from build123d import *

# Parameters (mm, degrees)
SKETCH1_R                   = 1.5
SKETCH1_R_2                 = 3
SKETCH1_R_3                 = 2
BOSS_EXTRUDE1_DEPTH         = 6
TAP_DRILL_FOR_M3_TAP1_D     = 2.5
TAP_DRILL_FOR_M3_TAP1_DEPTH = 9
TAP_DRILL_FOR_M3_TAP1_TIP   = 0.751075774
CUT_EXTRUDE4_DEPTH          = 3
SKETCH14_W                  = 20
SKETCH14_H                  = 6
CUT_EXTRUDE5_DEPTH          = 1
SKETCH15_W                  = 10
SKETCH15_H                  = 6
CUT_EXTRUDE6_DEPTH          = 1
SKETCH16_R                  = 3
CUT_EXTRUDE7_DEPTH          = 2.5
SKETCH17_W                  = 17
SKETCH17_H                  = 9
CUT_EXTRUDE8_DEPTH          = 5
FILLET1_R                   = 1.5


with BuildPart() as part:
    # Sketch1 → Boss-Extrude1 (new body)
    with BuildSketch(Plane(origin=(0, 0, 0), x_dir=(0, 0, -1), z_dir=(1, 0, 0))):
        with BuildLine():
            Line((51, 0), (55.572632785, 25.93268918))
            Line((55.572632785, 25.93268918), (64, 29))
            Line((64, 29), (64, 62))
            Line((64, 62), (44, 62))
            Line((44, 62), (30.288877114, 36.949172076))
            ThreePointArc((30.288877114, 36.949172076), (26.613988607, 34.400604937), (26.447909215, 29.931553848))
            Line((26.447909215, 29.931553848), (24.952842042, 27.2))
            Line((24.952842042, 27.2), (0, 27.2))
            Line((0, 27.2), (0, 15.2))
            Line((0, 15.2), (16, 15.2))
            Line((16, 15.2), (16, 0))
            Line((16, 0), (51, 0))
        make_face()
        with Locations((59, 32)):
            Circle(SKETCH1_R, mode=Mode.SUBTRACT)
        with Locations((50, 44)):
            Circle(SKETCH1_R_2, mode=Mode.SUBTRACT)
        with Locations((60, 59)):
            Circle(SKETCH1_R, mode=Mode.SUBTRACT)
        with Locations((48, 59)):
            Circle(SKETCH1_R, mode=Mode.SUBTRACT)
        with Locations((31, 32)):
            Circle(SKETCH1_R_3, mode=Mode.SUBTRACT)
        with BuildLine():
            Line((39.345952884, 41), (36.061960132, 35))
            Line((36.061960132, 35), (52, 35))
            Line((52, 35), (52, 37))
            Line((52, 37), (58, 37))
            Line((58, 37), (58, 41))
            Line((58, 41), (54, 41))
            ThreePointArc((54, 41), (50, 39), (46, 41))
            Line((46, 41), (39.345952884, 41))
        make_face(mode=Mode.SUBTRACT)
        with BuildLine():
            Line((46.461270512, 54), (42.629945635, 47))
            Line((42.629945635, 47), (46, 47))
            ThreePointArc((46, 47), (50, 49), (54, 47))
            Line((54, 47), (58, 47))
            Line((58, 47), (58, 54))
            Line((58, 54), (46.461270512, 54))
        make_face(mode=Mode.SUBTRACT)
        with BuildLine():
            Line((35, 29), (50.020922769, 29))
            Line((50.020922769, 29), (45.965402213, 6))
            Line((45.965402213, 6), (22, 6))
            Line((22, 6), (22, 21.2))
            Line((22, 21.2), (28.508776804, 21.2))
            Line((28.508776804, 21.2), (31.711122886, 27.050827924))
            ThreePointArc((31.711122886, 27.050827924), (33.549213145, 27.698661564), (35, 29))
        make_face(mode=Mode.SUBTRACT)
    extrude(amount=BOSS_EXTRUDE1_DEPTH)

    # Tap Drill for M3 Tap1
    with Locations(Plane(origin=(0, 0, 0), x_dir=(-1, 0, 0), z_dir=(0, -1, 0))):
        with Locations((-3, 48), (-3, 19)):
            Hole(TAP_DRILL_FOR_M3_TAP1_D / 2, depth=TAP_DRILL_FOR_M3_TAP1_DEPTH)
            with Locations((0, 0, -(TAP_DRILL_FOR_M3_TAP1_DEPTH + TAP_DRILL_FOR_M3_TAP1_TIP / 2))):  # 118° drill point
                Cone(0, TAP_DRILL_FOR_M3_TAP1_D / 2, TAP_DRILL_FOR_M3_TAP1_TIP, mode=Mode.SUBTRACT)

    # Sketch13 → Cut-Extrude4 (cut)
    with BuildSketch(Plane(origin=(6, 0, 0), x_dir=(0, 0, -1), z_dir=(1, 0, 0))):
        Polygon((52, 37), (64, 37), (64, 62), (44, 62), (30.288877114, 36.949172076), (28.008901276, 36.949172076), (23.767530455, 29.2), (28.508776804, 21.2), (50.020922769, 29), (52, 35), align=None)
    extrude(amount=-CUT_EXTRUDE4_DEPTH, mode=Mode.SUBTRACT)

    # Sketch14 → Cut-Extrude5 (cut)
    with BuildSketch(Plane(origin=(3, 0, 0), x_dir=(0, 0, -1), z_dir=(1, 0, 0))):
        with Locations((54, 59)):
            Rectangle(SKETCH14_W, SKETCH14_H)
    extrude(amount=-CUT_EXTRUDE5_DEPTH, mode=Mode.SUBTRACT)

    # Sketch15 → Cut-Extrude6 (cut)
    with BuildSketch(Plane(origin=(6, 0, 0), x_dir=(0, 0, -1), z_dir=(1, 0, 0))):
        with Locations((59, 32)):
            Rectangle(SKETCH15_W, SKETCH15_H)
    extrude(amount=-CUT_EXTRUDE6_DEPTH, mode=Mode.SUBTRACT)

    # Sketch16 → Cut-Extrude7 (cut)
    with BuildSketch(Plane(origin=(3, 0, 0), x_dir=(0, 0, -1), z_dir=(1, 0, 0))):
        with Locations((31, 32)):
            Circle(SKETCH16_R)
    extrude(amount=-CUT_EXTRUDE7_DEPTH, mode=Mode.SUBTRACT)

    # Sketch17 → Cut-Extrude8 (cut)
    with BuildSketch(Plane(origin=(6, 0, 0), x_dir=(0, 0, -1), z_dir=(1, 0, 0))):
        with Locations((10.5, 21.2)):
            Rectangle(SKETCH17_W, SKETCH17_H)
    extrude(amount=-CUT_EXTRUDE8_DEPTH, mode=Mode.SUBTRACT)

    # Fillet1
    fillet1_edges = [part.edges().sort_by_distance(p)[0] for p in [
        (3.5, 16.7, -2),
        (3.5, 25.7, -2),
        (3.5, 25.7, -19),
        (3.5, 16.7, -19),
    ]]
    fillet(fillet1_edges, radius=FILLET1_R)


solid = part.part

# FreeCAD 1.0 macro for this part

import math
import FreeCAD as App
import Part
import Sketcher
from FreeCAD import Vector
Q = App.Units.Quantity


def edges_at(feature, points):
    """Names of the edges that pass closest to the given points."""
    edges = feature.Shape.Edges
    near = lambda p: min(range(len(edges)), key=lambda i: edges[i].distToShape(Part.Vertex(*p))[0])
    return sorted({f"Edge{near(p) + 1}" for p in points})


def add_polygon(sketch, points):
    """Adds a closed chain of lines whose ends are joined by coincident constraints."""
    first, n = sketch.GeometryCount, len(points)
    for a, b in zip(points, points[1:] + points[:1]):
        sketch.addGeometry(Part.LineSegment(App.Vector(*a, 0), App.Vector(*b, 0)), False)
    for i in range(n):
        sketch.addConstraint(Sketcher.Constraint("Coincident", first + i, 2, first + (i + 1) % n, 1))

doc = App.newDocument("Part")
params = doc.addObject("Spreadsheet::Sheet", "Params")
for row, (alias, value) in enumerate([
    ("sketch1_diameter", "4 mm"),
    ("sketch1_diameter2", "3 mm"),
    ("sketch1_diameter3", "6 mm"),
    ("sketch1_radius", "5 mm"),
    ("sketch1_width", "33 mm"),
    ("pad1_length", "6 mm"),
    ("sketch2_diameter", "2.5 mm"),
    ("hole_diameter", "2.5 mm"),
    ("hole_depth", "9 mm"),
    ("sketch3_width", "25 mm"),
    ("sketch3_width2", "2 mm"),
    ("sketch3_height", "12 mm"),
    ("sketch3_height2", "20 mm"),
    ("pocket1_length", "3 mm"),
    ("sketch4_width", "6 mm"),
    ("sketch4_height", "20 mm"),
    ("pocket2_length", "1 mm"),
    ("sketch5_width", "6 mm"),
    ("sketch5_height", "10 mm"),
    ("pocket3_length", "1 mm"),
    ("sketch6_diameter", "6 mm"),
    ("pocket4_length", "2.5 mm"),
    ("sketch7_width", "9 mm"),
    ("sketch7_height", "17 mm"),
    ("pocket5_length", "5 mm"),
    ("fillet_radius", "1.5 mm"),
], start=1):
    params.set(f"A{row}", alias)
    params.set(f"B{row}", "=" + value)
    params.setAlias(f"B{row}", alias)

body = doc.addObject("PartDesign::Body", "Body")

sketch1 = body.newObject("Sketcher::SketchObject", "Sketch")
sketch1.AttachmentSupport = (doc.getObject("YZ_Plane"), [""])
sketch1.MapMode = "FlatFace"
sketch1.addGeometry(Part.LineSegment(Vector(0, -51, 0), Vector(25.9, -55.6, 0)), False)
sketch1.addGeometry(Part.LineSegment(Vector(25.9, -55.6, 0), Vector(29, -64, 0)), False)
sketch1.addGeometry(Part.LineSegment(Vector(29, -64, 0), Vector(62, -64, 0)), False)
sketch1.addGeometry(Part.LineSegment(Vector(62, -64, 0), Vector(62, -44, 0)), False)
sketch1.addGeometry(Part.LineSegment(Vector(62, -44, 0), Vector(36.9, -30.3, 0)), False)
sketch1.addGeometry(Part.ArcOfCircle(Part.Circle(Vector(32, -31, 0), Vector(0, 0, 1), 5), math.radians(8), math.radians(114)), False)
sketch1.addGeometry(Part.LineSegment(Vector(29.9, -26.4, 0), Vector(27.2, -25, 0)), False)
sketch1.addGeometry(Part.LineSegment(Vector(27.2, -25, 0), Vector(27.2, 0, 0)), False)
sketch1.addGeometry(Part.LineSegment(Vector(27.2, 0, 0), Vector(15.2, 0, 0)), False)
sketch1.addGeometry(Part.LineSegment(Vector(15.2, 0, 0), Vector(15.2, -16, 0)), False)
sketch1.addGeometry(Part.LineSegment(Vector(15.2, -16, 0), Vector(0, -16, 0)), False)
sketch1.addGeometry(Part.LineSegment(Vector(0, -16, 0), Vector(0, -51, 0)), False)
sketch1.addGeometry(Part.ArcOfCircle(Part.Circle(Vector(32, -31, 0), Vector(0, 0, 1), 5), math.radians(-172), math.radians(-127)), False)
sketch1.addGeometry(Part.LineSegment(Vector(29, -35, 0), Vector(29, -50, 0)), False)
sketch1.addGeometry(Part.LineSegment(Vector(29, -50, 0), Vector(6, -46, 0)), False)
sketch1.addGeometry(Part.LineSegment(Vector(6, -46, 0), Vector(6, -22, 0)), False)
sketch1.addGeometry(Part.LineSegment(Vector(6, -22, 0), Vector(21.2, -22, 0)), False)
sketch1.addGeometry(Part.LineSegment(Vector(21.2, -22, 0), Vector(21.2, -28.5, 0)), False)
sketch1.addGeometry(Part.LineSegment(Vector(21.2, -28.5, 0), Vector(27.1, -31.7, 0)), False)
sketch1.addGeometry(Part.Circle(Vector(32, -31, 0), Vector(0, 0, 1), 2), False)
sketch1.addGeometry(Part.Circle(Vector(32, -59, 0), Vector(0, 0, 1), 1.5), False)
sketch1.addGeometry(Part.LineSegment(Vector(35, -36.1, 0), Vector(41, -39.3, 0)), False)
sketch1.addGeometry(Part.LineSegment(Vector(41, -39.3, 0), Vector(41, -46, 0)), False)
sketch1.addGeometry(Part.ArcOfCircle(Part.Circle(Vector(44, -50, 0), Vector(0, 0, 1), 5), math.radians(127), math.radians(233)), False)
sketch1.addGeometry(Part.LineSegment(Vector(41, -54, 0), Vector(41, -58, 0)), False)
sketch1.addGeometry(Part.LineSegment(Vector(41, -58, 0), Vector(37, -58, 0)), False)
sketch1.addGeometry(Part.LineSegment(Vector(37, -58, 0), Vector(37, -52, 0)), False)
sketch1.addGeometry(Part.LineSegment(Vector(37, -52, 0), Vector(35, -52, 0)), False)
sketch1.addGeometry(Part.LineSegment(Vector(35, -52, 0), Vector(35, -36.1, 0)), False)
sketch1.addGeometry(Part.Circle(Vector(44, -50, 0), Vector(0, 0, 1), 3), False)
sketch1.addGeometry(Part.LineSegment(Vector(47, -42.6, 0), Vector(54, -46.5, 0)), False)
sketch1.addGeometry(Part.LineSegment(Vector(54, -46.5, 0), Vector(54, -58, 0)), False)
sketch1.addGeometry(Part.LineSegment(Vector(54, -58, 0), Vector(47, -58, 0)), False)
sketch1.addGeometry(Part.LineSegment(Vector(47, -58, 0), Vector(47, -54, 0)), False)
sketch1.addGeometry(Part.ArcOfCircle(Part.Circle(Vector(44, -50, 0), Vector(0, 0, 1), 5), math.radians(-53), math.radians(53)), False)
sketch1.addGeometry(Part.LineSegment(Vector(47, -46, 0), Vector(47, -42.6, 0)), False)
sketch1.addGeometry(Part.Circle(Vector(59, -48, 0), Vector(0, 0, 1), 1.5), False)
sketch1.addGeometry(Part.Circle(Vector(59, -60, 0), Vector(0, 0, 1), 1.5), False)
sketch1.addConstraint(Sketcher.Constraint("Coincident", 0, 2, 1, 1))
sketch1.addConstraint(Sketcher.Constraint("Coincident", 1, 2, 2, 1))
sketch1.addConstraint(Sketcher.Constraint("Coincident", 2, 2, 3, 1))
sketch1.addConstraint(Sketcher.Constraint("Coincident", 3, 2, 4, 1))
sketch1.addConstraint(Sketcher.Constraint("Coincident", 4, 2, 5, 1))
sketch1.addConstraint(Sketcher.Constraint("Coincident", 5, 2, 6, 1))
sketch1.addConstraint(Sketcher.Constraint("Coincident", 6, 2, 7, 1))
sketch1.addConstraint(Sketcher.Constraint("Coincident", 7, 2, 8, 1))
sketch1.addConstraint(Sketcher.Constraint("Coincident", 8, 2, 9, 1))
sketch1.addConstraint(Sketcher.Constraint("Coincident", 9, 2, 10, 1))
sketch1.addConstraint(Sketcher.Constraint("Coincident", 10, 2, 11, 1))
sketch1.addConstraint(Sketcher.Constraint("Coincident", 11, 2, 0, 1))
sketch1.addConstraint(Sketcher.Constraint("Coincident", 12, 2, 13, 1))
sketch1.addConstraint(Sketcher.Constraint("Coincident", 13, 2, 14, 1))
sketch1.addConstraint(Sketcher.Constraint("Coincident", 14, 2, 15, 1))
sketch1.addConstraint(Sketcher.Constraint("Coincident", 15, 2, 16, 1))
sketch1.addConstraint(Sketcher.Constraint("Coincident", 16, 2, 17, 1))
sketch1.addConstraint(Sketcher.Constraint("Coincident", 17, 2, 18, 1))
sketch1.addConstraint(Sketcher.Constraint("Coincident", 18, 2, 12, 1))
sketch1.addConstraint(Sketcher.Constraint("Coincident", 21, 2, 22, 1))
sketch1.addConstraint(Sketcher.Constraint("Coincident", 22, 2, 23, 1))
sketch1.addConstraint(Sketcher.Constraint("Coincident", 23, 2, 24, 1))
sketch1.addConstraint(Sketcher.Constraint("Coincident", 24, 2, 25, 1))
sketch1.addConstraint(Sketcher.Constraint("Coincident", 25, 2, 26, 1))
sketch1.addConstraint(Sketcher.Constraint("Coincident", 26, 2, 27, 1))
sketch1.addConstraint(Sketcher.Constraint("Coincident", 27, 2, 28, 1))
sketch1.addConstraint(Sketcher.Constraint("Coincident", 28, 2, 21, 1))
sketch1.addConstraint(Sketcher.Constraint("Coincident", 30, 2, 31, 1))
sketch1.addConstraint(Sketcher.Constraint("Coincident", 31, 2, 32, 1))
sketch1.addConstraint(Sketcher.Constraint("Coincident", 32, 2, 33, 1))
sketch1.addConstraint(Sketcher.Constraint("Coincident", 33, 2, 34, 1))
sketch1.addConstraint(Sketcher.Constraint("Coincident", 34, 2, 35, 1))
sketch1.addConstraint(Sketcher.Constraint("Coincident", 35, 2, 30, 1))
sketch1.addConstraint(Sketcher.Constraint("Horizontal", 2))
sketch1.addConstraint(Sketcher.Constraint("Vertical", 3))
sketch1.addConstraint(Sketcher.Constraint("Vertical", 7))
sketch1.addConstraint(Sketcher.Constraint("Horizontal", 8))
sketch1.addConstraint(Sketcher.Constraint("Vertical", 9))
sketch1.addConstraint(Sketcher.Constraint("Horizontal", 10))
sketch1.addConstraint(Sketcher.Constraint("Vertical", 11))
sketch1.addConstraint(Sketcher.Constraint("Vertical", 13))
sketch1.addConstraint(Sketcher.Constraint("Vertical", 15))
sketch1.addConstraint(Sketcher.Constraint("Horizontal", 16))
sketch1.addConstraint(Sketcher.Constraint("Vertical", 17))
sketch1.addConstraint(Sketcher.Constraint("Vertical", 22))
sketch1.addConstraint(Sketcher.Constraint("Vertical", 24))
sketch1.addConstraint(Sketcher.Constraint("Horizontal", 25))
sketch1.addConstraint(Sketcher.Constraint("Vertical", 26))
sketch1.addConstraint(Sketcher.Constraint("Horizontal", 27))
sketch1.addConstraint(Sketcher.Constraint("Vertical", 28))
sketch1.addConstraint(Sketcher.Constraint("Vertical", 31))
sketch1.addConstraint(Sketcher.Constraint("Horizontal", 32))
sketch1.addConstraint(Sketcher.Constraint("Vertical", 33))
sketch1.addConstraint(Sketcher.Constraint("Vertical", 35))
sketch1.addConstraint(Sketcher.Constraint("Coincident", 12, 3, 5, 3))
sketch1.addConstraint(Sketcher.Constraint("Coincident", 19, 3, 5, 3))
sketch1.addConstraint(Sketcher.Constraint("Coincident", 29, 3, 23, 3))
sketch1.addConstraint(Sketcher.Constraint("Coincident", 34, 3, 23, 3))
sketch1.addConstraint(Sketcher.Constraint("Equal", 5, 12))
sketch1.addConstraint(Sketcher.Constraint("Equal", 12, 23))
sketch1.addConstraint(Sketcher.Constraint("Equal", 23, 34))
sketch1.addConstraint(Sketcher.Constraint("Equal", 20, 36))
sketch1.addConstraint(Sketcher.Constraint("Equal", 36, 37))
sketch1.addConstraint(Sketcher.Constraint("PointOnObject", 7, 2, -1))
sketch1.addConstraint(Sketcher.Constraint("PointOnObject", 10, 2, -2))
sketch1.addConstraint(Sketcher.Constraint("Parallel", 4, 6))
sketch1.addConstraint(Sketcher.Constraint("Parallel", 0, 14))
sketch1.addConstraint(Sketcher.Constraint("Parallel", 6, 18))
sketch1.addConstraint(Sketcher.Constraint("Parallel", 18, 21))
sketch1.addConstraint(Sketcher.Constraint("Parallel", 21, 30))
sketch1.addConstraint(Sketcher.Constraint("Horizontal", 25, 2, 31, 2))
sketch1.addConstraint(Sketcher.Constraint("Horizontal", 23, 2, 33, 2))
sketch1.addConstraint(Sketcher.Constraint("Horizontal", 22, 2, 34, 2))
sketch1.addConstraint(Sketcher.Constraint("Vertical", 19, 3, 20, 3))
sketch1.addConstraint(Sketcher.Constraint("Vertical", 36, 3, 37, 3))
sketch1.addConstraint(Sketcher.Constraint("Vertical", 1, 2, 12, 2))
sketch1.addConstraint(Sketcher.Constraint("Vertical", 22, 2, 23, 2))
sketch1.addConstraint(Sketcher.Constraint("Equal", 10, 16))
sketch1.addConstraint(Sketcher.Constraint("Equal", 25, 24))
sketch1.addConstraint(Sketcher.Constraint("Diameter", 19, Q("4 mm")))
sketch1.addConstraint(Sketcher.Constraint("Diameter", 20, Q("3 mm")))
sketch1.addConstraint(Sketcher.Constraint("Diameter", 29, Q("6 mm")))
sketch1.addConstraint(Sketcher.Constraint("Radius", 5, Q("5 mm")))
sketch1.addConstraint(Sketcher.Constraint("DistanceX", 2, 1, 2, 2, Q("33 mm")))
sketch1.addConstraint(Sketcher.Constraint("DistanceX", 8, 2, 8, 1, Q("12 mm")))
sketch1.addConstraint(Sketcher.Constraint("DistanceX", 25, 2, 25, 1, Q("4 mm")))
sketch1.addConstraint(Sketcher.Constraint("DistanceX", 27, 2, 27, 1, Q("2 mm")))
sketch1.addConstraint(Sketcher.Constraint("DistanceX", 32, 2, 32, 1, Q("7 mm")))
sketch1.addConstraint(Sketcher.Constraint("DistanceY", 3, 1, 3, 2, Q("20 mm")))
sketch1.addConstraint(Sketcher.Constraint("DistanceY", 9, 2, 9, 1, Q("16 mm")))
sketch1.addConstraint(Sketcher.Constraint("DistanceY", 11, 2, 11, 1, Q("35 mm")))
sketch1.addConstraint(Sketcher.Constraint("DistanceY", 26, 1, 26, 2, Q("6 mm")))
sketch1.addConstraint(Sketcher.Constraint("Angle", 0, Q("-10 deg")))
sketch1.addConstraint(Sketcher.Constraint("Angle", 1, Q("-70 deg")))
sketch1.addConstraint(Sketcher.Constraint("DistanceX", 10, 2, 10, 1, Q("15.2 mm")))
sketch1.addConstraint(Sketcher.Constraint("DistanceX", -1, 1, 5, 3, Q("32 mm")))
sketch1.addConstraint(Sketcher.Constraint("DistanceY", 5, 3, -1, 1, Q("31 mm")))
sketch1.addConstraint(Sketcher.Constraint("DistanceY", 20, 3, -1, 1, Q("59 mm")))
sketch1.addConstraint(Sketcher.Constraint("DistanceX", -1, 1, 23, 3, Q("44 mm")))
sketch1.addConstraint(Sketcher.Constraint("DistanceY", 23, 3, -1, 1, Q("50 mm")))
sketch1.addConstraint(Sketcher.Constraint("DistanceX", -1, 1, 36, 3, Q("59 mm")))
sketch1.addConstraint(Sketcher.Constraint("DistanceY", 36, 3, -1, 1, Q("48 mm")))
sketch1.addConstraint(Sketcher.Constraint("DistanceY", 37, 3, -1, 1, Q("60 mm")))
sketch1.addConstraint(Sketcher.Constraint("DistanceX", -1, 1, 1, 2, Q("29 mm")))
sketch1.addConstraint(Sketcher.Constraint("DistanceY", 1, 2, -1, 1, Q("64 mm")))
sketch1.addConstraint(Sketcher.Constraint("DistanceX", -1, 1, 14, 2, Q("6 mm")))
sketch1.addConstraint(Sketcher.Constraint("DistanceY", 15, 2, -1, 1, Q("22 mm")))
sketch1.addConstraint(Sketcher.Constraint("DistanceX", -1, 1, 21, 2, Q("41 mm")))
sketch1.addConstraint(Sketcher.Constraint("DistanceY", 28, 1, 28, 2, Q("15.93804 mm")))
sketch1.addConstraint(Sketcher.Constraint("DistanceY", 31, 2, 31, 1, Q("11.538729 mm")))
sketch1.addConstraint(Sketcher.Constraint("Distance", 4, Q("28.557641 mm")))
sketch1.addConstraint(Sketcher.Constraint("Distance", 6, Q("3.113938 mm")))
sketch1.addConstraint(Sketcher.Constraint("DistanceY", 13, 2, 13, 1, Q("15.020923 mm")))
sketch1.addConstraint(Sketcher.Constraint("DistanceY", 17, 2, 17, 1, Q("6.508777 mm")))
sketch1.setExpression("Constraints[79]", "Params.sketch1_diameter")
sketch1.setExpression("Constraints[80]", "Params.sketch1_diameter2")
sketch1.setExpression("Constraints[81]", "Params.sketch1_diameter3")
sketch1.setExpression("Constraints[82]", "Params.sketch1_radius")
sketch1.setExpression("Constraints[83]", "Params.sketch1_width")
pad1 = body.newObject("PartDesign::Pad", "Pad")
pad1.Profile = sketch1
pad1.setExpression("Length", "Params.pad1_length")

sketch2 = body.newObject("Sketcher::SketchObject", "Sketch001")
sketch2.AttachmentSupport = (doc.getObject("XZ_Plane"), [""])
sketch2.MapMode = "FlatFace"
sketch2.addGeometry(Part.Circle(Vector(3, -48, 0), Vector(0, 0, 1), 1.2), False)
sketch2.addGeometry(Part.Circle(Vector(3, -19, 0), Vector(0, 0, 1), 1.2), False)
sketch2.addConstraint(Sketcher.Constraint("Equal", 0, 1))
sketch2.addConstraint(Sketcher.Constraint("Vertical", 0, 3, 1, 3))
sketch2.addConstraint(Sketcher.Constraint("Diameter", 0, Q("2.5 mm")))
sketch2.addConstraint(Sketcher.Constraint("DistanceX", -1, 1, 0, 3, Q("3 mm")))
sketch2.addConstraint(Sketcher.Constraint("DistanceY", 0, 3, -1, 1, Q("48 mm")))
sketch2.addConstraint(Sketcher.Constraint("DistanceY", 1, 3, -1, 1, Q("19 mm")))
sketch2.setExpression("Constraints[2]", "Params.sketch2_diameter")
doc.recompute()
hole = body.newObject("PartDesign::Hole", "Hole")
hole.Profile = sketch2
hole.ThreadType = "None"
hole.setExpression("Diameter", "Params.hole_diameter")
hole.DepthType = "Dimension"
hole.setExpression("Depth", "Params.hole_depth")
hole.DrillPoint = "Angled"
hole.DrillPointAngle = 118

sketch3 = body.newObject("Sketcher::SketchObject", "Sketch002")
sketch3.AttachmentSupport = (doc.getObject("YZ_Plane"), [""])
sketch3.MapMode = "FlatFace"
sketch3.AttachmentOffset = App.Placement(Vector(0, 0, 6), App.Rotation())
add_polygon(sketch3, [(37, -52), (37, -64), (62, -64), (62, -44), (36.9, -30.3), (36.9, -28), (29.2, -23.8), (21.2, -28.5), (29, -50), (35, -52)])
sketch3.addConstraint(Sketcher.Constraint("Vertical", 0))
sketch3.addConstraint(Sketcher.Constraint("Horizontal", 1))
sketch3.addConstraint(Sketcher.Constraint("Vertical", 2))
sketch3.addConstraint(Sketcher.Constraint("Vertical", 4))
sketch3.addConstraint(Sketcher.Constraint("Horizontal", 9))
sketch3.addConstraint(Sketcher.Constraint("Parallel", 3, 5))
sketch3.addConstraint(Sketcher.Constraint("DistanceX", 1, 1, 1, 2, Q("25 mm")))
sketch3.addConstraint(Sketcher.Constraint("DistanceX", 9, 1, 9, 2, Q("2 mm")))
sketch3.addConstraint(Sketcher.Constraint("DistanceY", 0, 2, 0, 1, Q("12 mm")))
sketch3.addConstraint(Sketcher.Constraint("DistanceY", 2, 1, 2, 2, Q("20 mm")))
sketch3.addConstraint(Sketcher.Constraint("DistanceX", -1, 1, 0, 2, Q("37 mm")))
sketch3.addConstraint(Sketcher.Constraint("DistanceY", 0, 2, -1, 1, Q("64 mm")))
sketch3.addConstraint(Sketcher.Constraint("DistanceX", -1, 1, 7, 2, Q("29 mm")))
sketch3.addConstraint(Sketcher.Constraint("DistanceX", 6, 2, 5, 2, Q("8 mm")))
sketch3.addConstraint(Sketcher.Constraint("DistanceX", -1, 1, 5, 2, Q("29.2 mm")))
sketch3.addConstraint(Sketcher.Constraint("DistanceY", 4, 2, -1, 1, Q("28.008901 mm")))
sketch3.addConstraint(Sketcher.Constraint("DistanceY", 3, 2, 6, 2, Q("1.7801 mm")))
sketch3.addConstraint(Sketcher.Constraint("Distance", 3, Q("28.557641 mm")))
sketch3.addConstraint(Sketcher.Constraint("Distance", 6, Q("9.299431 mm")))
sketch3.addConstraint(Sketcher.Constraint("Distance", 7, Q("22.882579 mm")))
sketch3.setExpression("Constraints[16]", "Params.sketch3_width")
sketch3.setExpression("Constraints[17]", "Params.sketch3_width2")
sketch3.setExpression("Constraints[18]", "Params.sketch3_height")
sketch3.setExpression("Constraints[19]", "Params.sketch3_height2")
pocket1 = body.newObject("PartDesign::Pocket", "Pocket")
pocket1.Profile = sketch3
pocket1.setExpression("Length", "Params.pocket1_length")

sketch4 = body.newObject("Sketcher::SketchObject", "Sketch003")
sketch4.AttachmentSupport = (doc.getObject("YZ_Plane"), [""])
sketch4.MapMode = "FlatFace"
sketch4.AttachmentOffset = App.Placement(Vector(0, 0, 3), App.Rotation())
add_polygon(sketch4, [(62, -44), (56, -44), (56, -64), (62, -64)])
sketch4.addConstraint(Sketcher.Constraint("Horizontal", 0))
sketch4.addConstraint(Sketcher.Constraint("Vertical", 1))
sketch4.addConstraint(Sketcher.Constraint("Horizontal", 2))
sketch4.addConstraint(Sketcher.Constraint("Vertical", 3))
sketch4.addConstraint(Sketcher.Constraint("DistanceX", 0, 2, 0, 1, Q("6 mm")))
sketch4.addConstraint(Sketcher.Constraint("DistanceY", 1, 2, 1, 1, Q("20 mm")))
sketch4.addConstraint(Sketcher.Constraint("DistanceX", -1, 1, 0, 2, Q("56 mm")))
sketch4.addConstraint(Sketcher.Constraint("DistanceY", 0, 2, -1, 1, Q("44 mm")))
sketch4.setExpression("Constraints[8]", "Params.sketch4_width")
sketch4.setExpression("Constraints[9]", "Params.sketch4_height")
pocket2 = body.newObject("PartDesign::Pocket", "Pocket001")
pocket2.Profile = sketch4
pocket2.setExpression("Length", "Params.pocket2_length")

sketch5 = body.newObject("Sketcher::SketchObject", "Sketch004")
sketch5.AttachmentSupport = (doc.getObject("YZ_Plane"), [""])
sketch5.MapMode = "FlatFace"
sketch5.AttachmentOffset = App.Placement(Vector(0, 0, 6), App.Rotation())
add_polygon(sketch5, [(35, -54), (29, -54), (29, -64), (35, -64)])
sketch5.addConstraint(Sketcher.Constraint("Horizontal", 0))
sketch5.addConstraint(Sketcher.Constraint("Vertical", 1))
sketch5.addConstraint(Sketcher.Constraint("Horizontal", 2))
sketch5.addConstraint(Sketcher.Constraint("Vertical", 3))
sketch5.addConstraint(Sketcher.Constraint("DistanceX", 0, 2, 0, 1, Q("6 mm")))
sketch5.addConstraint(Sketcher.Constraint("DistanceY", 1, 2, 1, 1, Q("10 mm")))
sketch5.addConstraint(Sketcher.Constraint("DistanceX", -1, 1, 0, 2, Q("29 mm")))
sketch5.addConstraint(Sketcher.Constraint("DistanceY", 0, 2, -1, 1, Q("54 mm")))
sketch5.setExpression("Constraints[8]", "Params.sketch5_width")
sketch5.setExpression("Constraints[9]", "Params.sketch5_height")
pocket3 = body.newObject("PartDesign::Pocket", "Pocket002")
pocket3.Profile = sketch5
pocket3.setExpression("Length", "Params.pocket3_length")

sketch6 = body.newObject("Sketcher::SketchObject", "Sketch005")
sketch6.AttachmentSupport = (doc.getObject("YZ_Plane"), [""])
sketch6.MapMode = "FlatFace"
sketch6.AttachmentOffset = App.Placement(Vector(0, 0, 3), App.Rotation())
sketch6.addGeometry(Part.Circle(Vector(32, -31, 0), Vector(0, 0, 1), 3), False)
sketch6.addConstraint(Sketcher.Constraint("Diameter", 0, Q("6 mm")))
sketch6.addConstraint(Sketcher.Constraint("DistanceX", -1, 1, 0, 3, Q("32 mm")))
sketch6.addConstraint(Sketcher.Constraint("DistanceY", 0, 3, -1, 1, Q("31 mm")))
sketch6.setExpression("Constraints[0]", "Params.sketch6_diameter")
pocket4 = body.newObject("PartDesign::Pocket", "Pocket003")
pocket4.Profile = sketch6
pocket4.setExpression("Length", "Params.pocket4_length")

sketch7 = body.newObject("Sketcher::SketchObject", "Sketch006")
sketch7.AttachmentSupport = (doc.getObject("YZ_Plane"), [""])
sketch7.MapMode = "FlatFace"
sketch7.AttachmentOffset = App.Placement(Vector(0, 0, 6), App.Rotation())
add_polygon(sketch7, [(26, -2), (17, -2), (17, -19), (26, -19)])
sketch7.addConstraint(Sketcher.Constraint("Horizontal", 0))
sketch7.addConstraint(Sketcher.Constraint("Vertical", 1))
sketch7.addConstraint(Sketcher.Constraint("Horizontal", 2))
sketch7.addConstraint(Sketcher.Constraint("Vertical", 3))
sketch7.addConstraint(Sketcher.Constraint("DistanceX", 0, 2, 0, 1, Q("9 mm")))
sketch7.addConstraint(Sketcher.Constraint("DistanceY", 1, 2, 1, 1, Q("17 mm")))
sketch7.addConstraint(Sketcher.Constraint("DistanceY", 0, 2, -1, 1, Q("2 mm")))
sketch7.addConstraint(Sketcher.Constraint("DistanceX", -1, 1, 0, 2, Q("16.7 mm")))
sketch7.setExpression("Constraints[8]", "Params.sketch7_width")
sketch7.setExpression("Constraints[9]", "Params.sketch7_height")
pocket5 = body.newObject("PartDesign::Pocket", "Pocket004")
pocket5.Profile = sketch7
pocket5.setExpression("Length", "Params.pocket5_length")
doc.recompute()

fillet = body.newObject("PartDesign::Fillet", "Fillet")
fillet.Base = (pocket5, edges_at(pocket5, [
    (3.5, 16.7, -2),
    (3.5, 25.7, -2),
    (3.5, 25.7, -19),
    (3.5, 16.7, -19),
]))
fillet.setExpression("Radius", "Params.fillet_radius")

doc.recompute()
